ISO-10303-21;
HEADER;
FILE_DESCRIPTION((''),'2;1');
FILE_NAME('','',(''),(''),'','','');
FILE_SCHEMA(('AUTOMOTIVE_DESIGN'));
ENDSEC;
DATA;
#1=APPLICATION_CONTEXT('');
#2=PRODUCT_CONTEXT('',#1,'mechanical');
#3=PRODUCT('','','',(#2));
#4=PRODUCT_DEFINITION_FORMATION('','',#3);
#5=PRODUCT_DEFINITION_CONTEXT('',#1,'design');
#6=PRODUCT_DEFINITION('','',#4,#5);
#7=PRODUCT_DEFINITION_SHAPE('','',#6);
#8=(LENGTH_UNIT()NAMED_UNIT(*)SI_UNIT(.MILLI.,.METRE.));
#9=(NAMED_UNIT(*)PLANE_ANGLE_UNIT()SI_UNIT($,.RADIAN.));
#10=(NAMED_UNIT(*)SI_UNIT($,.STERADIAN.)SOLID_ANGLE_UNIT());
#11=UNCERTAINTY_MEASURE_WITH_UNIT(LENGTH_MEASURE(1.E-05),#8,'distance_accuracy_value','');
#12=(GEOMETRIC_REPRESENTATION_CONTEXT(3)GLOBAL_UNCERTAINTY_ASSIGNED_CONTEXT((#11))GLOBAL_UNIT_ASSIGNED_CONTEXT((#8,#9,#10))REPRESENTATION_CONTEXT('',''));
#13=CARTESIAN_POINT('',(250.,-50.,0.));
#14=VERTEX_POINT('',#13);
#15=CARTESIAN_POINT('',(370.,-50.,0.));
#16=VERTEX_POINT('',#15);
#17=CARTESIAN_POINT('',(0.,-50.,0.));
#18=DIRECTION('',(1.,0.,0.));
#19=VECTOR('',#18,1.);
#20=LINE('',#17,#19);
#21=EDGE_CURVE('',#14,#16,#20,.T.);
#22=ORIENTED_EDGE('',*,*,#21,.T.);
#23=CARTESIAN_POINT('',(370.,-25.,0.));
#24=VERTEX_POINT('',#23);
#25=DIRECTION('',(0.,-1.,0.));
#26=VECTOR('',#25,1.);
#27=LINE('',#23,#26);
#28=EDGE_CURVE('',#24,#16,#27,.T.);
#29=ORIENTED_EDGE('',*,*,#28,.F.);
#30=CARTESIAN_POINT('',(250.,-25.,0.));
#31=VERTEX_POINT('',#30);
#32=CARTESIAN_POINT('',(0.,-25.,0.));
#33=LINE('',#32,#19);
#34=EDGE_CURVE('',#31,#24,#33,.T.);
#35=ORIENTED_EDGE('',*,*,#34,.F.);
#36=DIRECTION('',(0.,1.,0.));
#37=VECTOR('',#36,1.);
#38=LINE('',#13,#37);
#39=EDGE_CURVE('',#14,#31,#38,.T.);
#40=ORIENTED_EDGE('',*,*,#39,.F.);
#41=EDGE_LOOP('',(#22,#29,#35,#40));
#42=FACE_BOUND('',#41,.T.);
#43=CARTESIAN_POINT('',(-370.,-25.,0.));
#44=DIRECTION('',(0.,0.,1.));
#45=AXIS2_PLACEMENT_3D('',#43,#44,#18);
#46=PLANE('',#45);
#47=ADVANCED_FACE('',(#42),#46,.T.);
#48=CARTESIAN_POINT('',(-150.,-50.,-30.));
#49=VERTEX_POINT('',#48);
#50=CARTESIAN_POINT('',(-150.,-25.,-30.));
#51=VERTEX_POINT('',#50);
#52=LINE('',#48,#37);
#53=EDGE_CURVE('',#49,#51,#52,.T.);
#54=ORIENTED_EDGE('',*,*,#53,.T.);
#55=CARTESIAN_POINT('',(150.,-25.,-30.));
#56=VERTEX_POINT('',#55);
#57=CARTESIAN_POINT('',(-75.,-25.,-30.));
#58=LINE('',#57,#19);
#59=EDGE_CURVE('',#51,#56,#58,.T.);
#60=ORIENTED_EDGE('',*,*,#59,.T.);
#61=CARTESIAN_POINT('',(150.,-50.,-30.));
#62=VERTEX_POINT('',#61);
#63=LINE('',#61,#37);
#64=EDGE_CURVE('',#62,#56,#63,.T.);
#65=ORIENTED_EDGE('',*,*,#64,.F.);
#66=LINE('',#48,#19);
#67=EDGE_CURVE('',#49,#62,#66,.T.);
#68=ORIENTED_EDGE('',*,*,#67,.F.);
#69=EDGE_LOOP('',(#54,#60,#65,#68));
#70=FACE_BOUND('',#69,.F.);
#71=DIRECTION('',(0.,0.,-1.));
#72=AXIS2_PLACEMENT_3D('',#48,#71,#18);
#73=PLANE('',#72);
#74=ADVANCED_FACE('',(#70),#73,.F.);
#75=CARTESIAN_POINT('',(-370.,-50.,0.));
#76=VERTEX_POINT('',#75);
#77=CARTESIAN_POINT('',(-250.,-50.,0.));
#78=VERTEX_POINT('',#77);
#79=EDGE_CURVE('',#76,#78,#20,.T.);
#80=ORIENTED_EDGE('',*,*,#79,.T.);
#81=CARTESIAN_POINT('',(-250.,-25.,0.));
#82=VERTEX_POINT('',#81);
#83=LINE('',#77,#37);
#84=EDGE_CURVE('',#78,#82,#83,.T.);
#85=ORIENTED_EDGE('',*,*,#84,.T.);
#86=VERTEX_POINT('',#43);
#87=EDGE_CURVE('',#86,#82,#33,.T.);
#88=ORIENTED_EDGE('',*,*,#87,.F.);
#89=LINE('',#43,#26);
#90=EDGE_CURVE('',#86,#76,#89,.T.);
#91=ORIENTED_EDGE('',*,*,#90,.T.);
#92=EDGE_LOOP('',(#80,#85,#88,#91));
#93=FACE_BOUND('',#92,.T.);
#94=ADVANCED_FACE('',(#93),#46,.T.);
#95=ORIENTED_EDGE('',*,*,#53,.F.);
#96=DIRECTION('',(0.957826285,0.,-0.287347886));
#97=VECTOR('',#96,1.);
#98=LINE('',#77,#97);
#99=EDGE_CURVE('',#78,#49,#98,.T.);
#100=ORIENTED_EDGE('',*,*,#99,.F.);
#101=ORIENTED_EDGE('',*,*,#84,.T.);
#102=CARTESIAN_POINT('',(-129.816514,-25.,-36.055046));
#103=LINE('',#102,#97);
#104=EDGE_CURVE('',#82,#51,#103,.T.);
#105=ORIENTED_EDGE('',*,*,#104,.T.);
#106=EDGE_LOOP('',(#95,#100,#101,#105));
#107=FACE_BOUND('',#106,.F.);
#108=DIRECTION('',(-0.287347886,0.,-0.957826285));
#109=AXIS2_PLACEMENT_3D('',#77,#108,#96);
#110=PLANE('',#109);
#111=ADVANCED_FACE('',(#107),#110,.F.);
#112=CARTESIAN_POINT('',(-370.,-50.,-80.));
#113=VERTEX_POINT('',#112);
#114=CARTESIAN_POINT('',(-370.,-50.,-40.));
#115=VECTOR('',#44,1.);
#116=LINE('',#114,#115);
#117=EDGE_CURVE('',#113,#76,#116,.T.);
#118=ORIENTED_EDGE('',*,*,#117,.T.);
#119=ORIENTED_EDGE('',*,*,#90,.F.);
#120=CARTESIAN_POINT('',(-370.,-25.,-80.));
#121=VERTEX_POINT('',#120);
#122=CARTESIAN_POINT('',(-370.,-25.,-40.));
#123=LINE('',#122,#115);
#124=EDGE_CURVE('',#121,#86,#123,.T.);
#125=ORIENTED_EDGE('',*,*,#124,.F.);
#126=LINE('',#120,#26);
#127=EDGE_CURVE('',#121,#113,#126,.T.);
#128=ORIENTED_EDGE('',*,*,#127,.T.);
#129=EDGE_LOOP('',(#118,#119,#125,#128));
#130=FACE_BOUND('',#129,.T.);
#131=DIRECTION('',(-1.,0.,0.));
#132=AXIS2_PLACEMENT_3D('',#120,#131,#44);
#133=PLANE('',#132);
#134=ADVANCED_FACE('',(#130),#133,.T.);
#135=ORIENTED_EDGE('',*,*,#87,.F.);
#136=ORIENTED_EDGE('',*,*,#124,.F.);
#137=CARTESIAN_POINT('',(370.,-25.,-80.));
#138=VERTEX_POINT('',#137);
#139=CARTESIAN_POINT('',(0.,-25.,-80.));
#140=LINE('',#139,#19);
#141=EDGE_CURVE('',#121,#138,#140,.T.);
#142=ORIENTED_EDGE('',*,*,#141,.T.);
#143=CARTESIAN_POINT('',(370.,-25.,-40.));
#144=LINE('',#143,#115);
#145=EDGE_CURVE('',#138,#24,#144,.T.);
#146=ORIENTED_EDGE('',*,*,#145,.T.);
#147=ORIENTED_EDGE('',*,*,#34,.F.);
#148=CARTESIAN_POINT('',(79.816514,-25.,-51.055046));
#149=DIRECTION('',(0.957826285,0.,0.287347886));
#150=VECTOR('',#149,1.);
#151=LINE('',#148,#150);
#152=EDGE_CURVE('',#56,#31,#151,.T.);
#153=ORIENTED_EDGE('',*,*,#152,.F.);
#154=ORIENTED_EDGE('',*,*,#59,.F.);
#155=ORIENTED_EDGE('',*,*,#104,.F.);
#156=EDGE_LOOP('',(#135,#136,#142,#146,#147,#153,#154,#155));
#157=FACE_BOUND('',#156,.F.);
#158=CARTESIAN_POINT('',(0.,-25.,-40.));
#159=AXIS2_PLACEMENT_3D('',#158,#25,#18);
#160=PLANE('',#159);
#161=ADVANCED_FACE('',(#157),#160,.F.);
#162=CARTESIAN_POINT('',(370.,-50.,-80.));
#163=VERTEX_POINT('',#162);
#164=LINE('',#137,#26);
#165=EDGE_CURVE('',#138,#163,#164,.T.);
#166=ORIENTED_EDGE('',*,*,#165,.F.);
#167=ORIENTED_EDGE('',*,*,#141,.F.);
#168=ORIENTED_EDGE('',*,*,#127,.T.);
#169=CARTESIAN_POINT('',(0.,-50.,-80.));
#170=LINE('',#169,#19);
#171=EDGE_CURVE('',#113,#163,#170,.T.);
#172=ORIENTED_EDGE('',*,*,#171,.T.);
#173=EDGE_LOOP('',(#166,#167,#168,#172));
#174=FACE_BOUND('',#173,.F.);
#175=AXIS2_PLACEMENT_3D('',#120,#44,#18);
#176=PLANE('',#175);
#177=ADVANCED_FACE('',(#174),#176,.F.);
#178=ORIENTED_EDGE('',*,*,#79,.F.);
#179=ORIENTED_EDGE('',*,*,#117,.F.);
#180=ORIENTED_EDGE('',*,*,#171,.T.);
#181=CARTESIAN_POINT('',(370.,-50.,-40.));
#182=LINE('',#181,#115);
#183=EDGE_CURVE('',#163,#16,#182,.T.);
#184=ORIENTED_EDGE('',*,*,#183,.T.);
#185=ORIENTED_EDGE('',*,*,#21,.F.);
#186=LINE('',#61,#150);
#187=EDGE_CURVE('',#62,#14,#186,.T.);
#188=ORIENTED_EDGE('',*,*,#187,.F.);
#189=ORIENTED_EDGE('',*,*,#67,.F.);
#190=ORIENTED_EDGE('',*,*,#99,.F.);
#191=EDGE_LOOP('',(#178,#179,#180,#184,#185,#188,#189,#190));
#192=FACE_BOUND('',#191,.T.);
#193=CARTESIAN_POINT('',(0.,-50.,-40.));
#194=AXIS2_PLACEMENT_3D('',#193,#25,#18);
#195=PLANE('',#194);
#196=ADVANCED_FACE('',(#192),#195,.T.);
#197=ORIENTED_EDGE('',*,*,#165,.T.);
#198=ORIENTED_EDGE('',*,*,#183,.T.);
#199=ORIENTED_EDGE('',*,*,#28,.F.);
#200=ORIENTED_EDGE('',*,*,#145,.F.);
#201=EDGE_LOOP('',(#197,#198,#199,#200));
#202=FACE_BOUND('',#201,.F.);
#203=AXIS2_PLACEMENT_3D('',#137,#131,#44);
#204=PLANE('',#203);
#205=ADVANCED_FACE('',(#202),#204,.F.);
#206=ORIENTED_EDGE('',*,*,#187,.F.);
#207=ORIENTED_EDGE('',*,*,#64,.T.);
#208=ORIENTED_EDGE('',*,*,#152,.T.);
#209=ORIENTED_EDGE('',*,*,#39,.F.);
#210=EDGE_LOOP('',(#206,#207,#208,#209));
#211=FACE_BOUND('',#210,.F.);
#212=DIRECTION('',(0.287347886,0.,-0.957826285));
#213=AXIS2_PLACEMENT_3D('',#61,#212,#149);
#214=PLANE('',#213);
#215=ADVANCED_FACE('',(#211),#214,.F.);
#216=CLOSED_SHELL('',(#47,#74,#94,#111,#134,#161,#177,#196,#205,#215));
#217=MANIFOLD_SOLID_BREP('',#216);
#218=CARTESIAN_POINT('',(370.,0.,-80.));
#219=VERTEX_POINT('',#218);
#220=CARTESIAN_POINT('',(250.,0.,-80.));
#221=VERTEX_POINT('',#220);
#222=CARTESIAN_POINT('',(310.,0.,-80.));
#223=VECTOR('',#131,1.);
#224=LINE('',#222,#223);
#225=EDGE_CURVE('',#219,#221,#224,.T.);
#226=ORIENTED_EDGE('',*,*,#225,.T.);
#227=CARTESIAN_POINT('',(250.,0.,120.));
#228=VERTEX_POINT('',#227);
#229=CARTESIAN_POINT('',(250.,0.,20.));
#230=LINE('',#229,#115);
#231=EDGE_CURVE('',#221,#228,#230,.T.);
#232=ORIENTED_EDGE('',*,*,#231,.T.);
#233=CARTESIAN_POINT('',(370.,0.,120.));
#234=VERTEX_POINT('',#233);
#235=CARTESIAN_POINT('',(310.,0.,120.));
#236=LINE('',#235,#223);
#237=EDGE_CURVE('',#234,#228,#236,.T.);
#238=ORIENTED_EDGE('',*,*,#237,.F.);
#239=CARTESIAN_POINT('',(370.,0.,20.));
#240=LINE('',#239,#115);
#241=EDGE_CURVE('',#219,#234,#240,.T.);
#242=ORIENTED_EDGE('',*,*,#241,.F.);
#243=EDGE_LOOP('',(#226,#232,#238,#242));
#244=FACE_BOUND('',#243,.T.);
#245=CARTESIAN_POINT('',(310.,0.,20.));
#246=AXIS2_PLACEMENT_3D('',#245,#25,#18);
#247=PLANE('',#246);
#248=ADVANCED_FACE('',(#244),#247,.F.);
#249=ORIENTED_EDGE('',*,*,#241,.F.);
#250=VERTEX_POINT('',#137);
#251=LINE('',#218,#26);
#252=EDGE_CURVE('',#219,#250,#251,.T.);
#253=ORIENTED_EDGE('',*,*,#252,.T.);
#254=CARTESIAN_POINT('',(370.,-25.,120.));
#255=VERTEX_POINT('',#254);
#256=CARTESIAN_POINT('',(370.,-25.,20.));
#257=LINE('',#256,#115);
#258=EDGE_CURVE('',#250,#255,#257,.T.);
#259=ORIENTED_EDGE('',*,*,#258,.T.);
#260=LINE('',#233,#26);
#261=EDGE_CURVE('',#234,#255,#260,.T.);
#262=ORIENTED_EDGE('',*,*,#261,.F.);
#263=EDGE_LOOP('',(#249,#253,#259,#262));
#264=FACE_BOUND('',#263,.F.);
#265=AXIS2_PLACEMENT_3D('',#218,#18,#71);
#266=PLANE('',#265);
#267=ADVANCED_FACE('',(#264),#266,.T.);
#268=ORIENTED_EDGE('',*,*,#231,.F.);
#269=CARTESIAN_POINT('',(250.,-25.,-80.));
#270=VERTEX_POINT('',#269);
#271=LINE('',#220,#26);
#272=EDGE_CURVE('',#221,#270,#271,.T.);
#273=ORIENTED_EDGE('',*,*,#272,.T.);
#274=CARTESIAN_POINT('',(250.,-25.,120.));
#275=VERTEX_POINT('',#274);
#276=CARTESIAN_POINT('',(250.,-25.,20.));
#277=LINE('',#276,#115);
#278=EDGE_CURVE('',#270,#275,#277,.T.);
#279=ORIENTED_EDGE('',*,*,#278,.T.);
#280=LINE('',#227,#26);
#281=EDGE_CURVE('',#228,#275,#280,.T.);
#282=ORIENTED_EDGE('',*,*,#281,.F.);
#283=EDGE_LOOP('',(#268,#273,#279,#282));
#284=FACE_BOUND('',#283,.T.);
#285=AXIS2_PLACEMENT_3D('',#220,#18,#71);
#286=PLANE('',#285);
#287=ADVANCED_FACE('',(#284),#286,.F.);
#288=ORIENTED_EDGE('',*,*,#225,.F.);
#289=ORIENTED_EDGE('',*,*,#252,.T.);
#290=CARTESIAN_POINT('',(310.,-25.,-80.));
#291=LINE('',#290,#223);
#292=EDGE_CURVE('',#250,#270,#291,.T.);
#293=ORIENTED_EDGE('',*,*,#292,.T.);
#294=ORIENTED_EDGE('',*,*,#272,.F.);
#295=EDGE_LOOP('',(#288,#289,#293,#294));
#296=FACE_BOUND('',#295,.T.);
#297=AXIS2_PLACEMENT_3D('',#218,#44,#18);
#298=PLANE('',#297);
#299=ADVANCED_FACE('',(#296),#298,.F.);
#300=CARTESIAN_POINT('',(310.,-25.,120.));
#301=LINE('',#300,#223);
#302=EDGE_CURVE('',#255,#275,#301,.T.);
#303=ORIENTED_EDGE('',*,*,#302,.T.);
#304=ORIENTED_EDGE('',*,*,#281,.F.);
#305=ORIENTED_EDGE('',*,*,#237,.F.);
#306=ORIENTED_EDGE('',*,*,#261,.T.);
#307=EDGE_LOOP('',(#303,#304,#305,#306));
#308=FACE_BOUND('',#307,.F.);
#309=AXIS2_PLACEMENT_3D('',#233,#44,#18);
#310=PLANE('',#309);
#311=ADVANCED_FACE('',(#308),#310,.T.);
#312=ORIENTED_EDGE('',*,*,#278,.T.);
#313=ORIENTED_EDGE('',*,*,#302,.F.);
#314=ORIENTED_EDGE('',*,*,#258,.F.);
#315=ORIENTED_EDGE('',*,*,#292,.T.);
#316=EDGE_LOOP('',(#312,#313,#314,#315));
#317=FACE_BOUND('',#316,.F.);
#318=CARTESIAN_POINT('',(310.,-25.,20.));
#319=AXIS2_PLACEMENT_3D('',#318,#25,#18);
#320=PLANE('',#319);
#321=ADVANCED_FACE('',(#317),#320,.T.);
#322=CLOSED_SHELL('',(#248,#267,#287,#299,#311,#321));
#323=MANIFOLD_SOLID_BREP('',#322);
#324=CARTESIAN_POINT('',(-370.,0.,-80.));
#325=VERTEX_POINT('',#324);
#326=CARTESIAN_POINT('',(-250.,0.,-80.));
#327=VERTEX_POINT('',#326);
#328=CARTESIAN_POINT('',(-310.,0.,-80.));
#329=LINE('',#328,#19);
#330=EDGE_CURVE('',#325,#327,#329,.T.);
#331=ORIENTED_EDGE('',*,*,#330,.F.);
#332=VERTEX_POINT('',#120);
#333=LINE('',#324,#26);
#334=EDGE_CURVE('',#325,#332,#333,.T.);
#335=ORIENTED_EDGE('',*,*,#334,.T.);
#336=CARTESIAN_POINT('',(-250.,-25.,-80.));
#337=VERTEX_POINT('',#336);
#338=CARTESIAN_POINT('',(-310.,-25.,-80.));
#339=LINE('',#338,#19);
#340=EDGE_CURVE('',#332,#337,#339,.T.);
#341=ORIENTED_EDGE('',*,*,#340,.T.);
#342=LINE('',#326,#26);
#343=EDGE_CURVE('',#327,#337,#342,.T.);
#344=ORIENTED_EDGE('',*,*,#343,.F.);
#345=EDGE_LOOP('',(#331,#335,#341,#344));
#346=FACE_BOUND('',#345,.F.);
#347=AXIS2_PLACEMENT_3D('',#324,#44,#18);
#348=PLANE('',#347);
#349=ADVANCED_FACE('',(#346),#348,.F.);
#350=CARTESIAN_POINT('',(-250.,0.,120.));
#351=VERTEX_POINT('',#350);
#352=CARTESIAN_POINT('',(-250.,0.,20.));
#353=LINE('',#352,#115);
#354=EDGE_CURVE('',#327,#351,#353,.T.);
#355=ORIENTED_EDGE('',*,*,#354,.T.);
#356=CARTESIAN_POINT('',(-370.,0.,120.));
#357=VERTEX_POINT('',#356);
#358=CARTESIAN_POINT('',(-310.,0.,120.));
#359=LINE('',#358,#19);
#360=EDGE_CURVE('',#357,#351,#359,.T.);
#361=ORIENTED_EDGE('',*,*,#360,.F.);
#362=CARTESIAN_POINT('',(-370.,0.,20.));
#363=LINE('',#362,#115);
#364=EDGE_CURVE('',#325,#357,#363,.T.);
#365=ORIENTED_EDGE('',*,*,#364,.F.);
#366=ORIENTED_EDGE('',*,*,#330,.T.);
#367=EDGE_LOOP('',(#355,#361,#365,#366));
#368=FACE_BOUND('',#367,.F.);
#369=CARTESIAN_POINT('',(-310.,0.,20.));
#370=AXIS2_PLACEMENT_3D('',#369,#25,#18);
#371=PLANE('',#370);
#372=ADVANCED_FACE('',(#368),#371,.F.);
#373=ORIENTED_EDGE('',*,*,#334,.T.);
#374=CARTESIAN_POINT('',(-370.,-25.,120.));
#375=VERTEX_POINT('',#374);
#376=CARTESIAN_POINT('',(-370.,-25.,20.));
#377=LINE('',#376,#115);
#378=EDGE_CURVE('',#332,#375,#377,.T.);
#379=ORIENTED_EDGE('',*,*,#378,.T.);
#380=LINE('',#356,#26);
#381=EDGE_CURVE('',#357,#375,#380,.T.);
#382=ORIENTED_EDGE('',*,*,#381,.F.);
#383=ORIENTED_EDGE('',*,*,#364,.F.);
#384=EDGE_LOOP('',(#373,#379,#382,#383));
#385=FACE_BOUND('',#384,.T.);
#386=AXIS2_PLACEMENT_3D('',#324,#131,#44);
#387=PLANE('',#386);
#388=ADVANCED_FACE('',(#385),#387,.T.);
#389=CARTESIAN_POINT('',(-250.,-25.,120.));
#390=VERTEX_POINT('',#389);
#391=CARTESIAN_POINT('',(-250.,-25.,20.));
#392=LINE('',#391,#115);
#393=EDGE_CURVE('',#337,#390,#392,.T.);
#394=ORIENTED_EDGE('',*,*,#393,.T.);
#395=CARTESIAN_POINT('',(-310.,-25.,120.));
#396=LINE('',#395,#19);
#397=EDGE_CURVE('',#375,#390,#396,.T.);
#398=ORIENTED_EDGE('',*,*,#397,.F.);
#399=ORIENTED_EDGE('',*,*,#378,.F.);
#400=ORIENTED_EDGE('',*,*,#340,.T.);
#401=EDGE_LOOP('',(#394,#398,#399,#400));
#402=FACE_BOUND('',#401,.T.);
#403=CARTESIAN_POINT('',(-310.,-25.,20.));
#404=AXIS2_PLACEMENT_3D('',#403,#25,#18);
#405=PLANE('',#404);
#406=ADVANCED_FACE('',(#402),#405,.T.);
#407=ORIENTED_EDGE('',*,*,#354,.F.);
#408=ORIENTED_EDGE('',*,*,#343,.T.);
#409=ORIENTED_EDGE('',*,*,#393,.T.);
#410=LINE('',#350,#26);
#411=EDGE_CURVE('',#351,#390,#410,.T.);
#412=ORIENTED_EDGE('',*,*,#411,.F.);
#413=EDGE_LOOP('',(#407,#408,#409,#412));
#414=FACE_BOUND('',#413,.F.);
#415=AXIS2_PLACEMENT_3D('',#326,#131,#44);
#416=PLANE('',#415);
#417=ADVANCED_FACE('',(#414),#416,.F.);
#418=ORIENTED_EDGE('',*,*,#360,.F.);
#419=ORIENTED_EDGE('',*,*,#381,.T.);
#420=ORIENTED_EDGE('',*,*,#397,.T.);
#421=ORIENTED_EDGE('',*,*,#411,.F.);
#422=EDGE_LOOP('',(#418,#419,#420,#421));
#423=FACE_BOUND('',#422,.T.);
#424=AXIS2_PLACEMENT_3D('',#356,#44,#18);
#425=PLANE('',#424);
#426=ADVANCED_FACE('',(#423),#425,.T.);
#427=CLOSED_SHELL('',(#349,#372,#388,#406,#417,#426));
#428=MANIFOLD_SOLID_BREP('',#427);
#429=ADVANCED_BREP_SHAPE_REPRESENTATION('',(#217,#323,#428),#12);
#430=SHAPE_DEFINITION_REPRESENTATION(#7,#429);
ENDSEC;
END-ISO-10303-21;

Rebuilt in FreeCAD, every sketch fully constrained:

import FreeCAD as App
import Part
import Sketcher
from FreeCAD import Vector

doc = App.newDocument("Part")
body = doc.addObject("PartDesign::Body", "Body")

sketch1 = body.newObject("Sketcher::SketchObject", "Sketch")
sketch1.AttachmentSupport = (doc.getObject("XZ_Plane"), [""])
sketch1.MapMode = "FlatFace"
sketch1.addGeometry(Part.LineSegment(Vector(-370, 120, 0), Vector(-370, -80, 0)), False)
sketch1.addGeometry(Part.LineSegment(Vector(-370, -80, 0), Vector(-250, -80, 0)), False)
sketch1.addGeometry(Part.LineSegment(Vector(-250, -80, 0), Vector(-250, 120, 0)), False)
sketch1.addGeometry(Part.LineSegment(Vector(-250, 120, 0), Vector(-370, 120, 0)), False)
sketch1.addConstraint(Sketcher.Constraint("Coincident", 0, 2, 1, 1))
sketch1.addConstraint(Sketcher.Constraint("Coincident", 1, 2, 2, 1))
sketch1.addConstraint(Sketcher.Constraint("Coincident", 2, 2, 3, 1))
sketch1.addConstraint(Sketcher.Constraint("Coincident", 3, 2, 0, 1))
sketch1.addConstraint(Sketcher.Constraint("Vertical", 0))
sketch1.addConstraint(Sketcher.Constraint("Horizontal", 1))
sketch1.addConstraint(Sketcher.Constraint("Vertical", 2))
sketch1.addConstraint(Sketcher.Constraint("Horizontal", 3))
sketch1.addConstraint(Sketcher.Constraint("DistanceX", 1, 1, 1, 2, 120.0))
sketch1.addConstraint(Sketcher.Constraint("DistanceY", 0, 2, 0, 1, 200.0))
sketch1.addConstraint(Sketcher.Constraint("DistanceX", 0, 2, -1, 1, 370.0))
sketch1.addConstraint(Sketcher.Constraint("DistanceY", 0, 2, -1, 1, 80.0))
pad1 = body.newObject("PartDesign::Pad", "Pad")
pad1.Profile = sketch1
pad1.Length = 25
body2 = doc.addObject("PartDesign::Body", "Body001")
doc.recompute()

mirroring = doc.addObject("Part::Mirroring", "Mirroring")
mirroring.Source = body
mirroring.Base = Vector(0, 0, 0)
mirroring.Normal = Vector(1, 0, 0)
body2.BaseFeature = mirroring
doc.recompute()
body3 = doc.addObject("PartDesign::Body", "Body002")

sketch2 = body3.newObject("Sketcher::SketchObject", "Sketch001")
sketch2.AttachmentSupport = (doc.getObject("XZ_Plane002"), [""])
sketch2.MapMode = "FlatFace"
sketch2.AttachmentOffset = App.Placement(Vector(0, 0, 25), App.Rotation())
sketch2.addGeometry(Part.LineSegment(Vector(-370, 0, 0), Vector(-370, -80, 0)), False)
sketch2.addGeometry(Part.LineSegment(Vector(-370, -80, 0), Vector(370, -80, 0)), False)
sketch2.addGeometry(Part.LineSegment(Vector(370, -80, 0), Vector(370, 0, 0)), False)
sketch2.addGeometry(Part.LineSegment(Vector(370, 0, 0), Vector(-370, 0, 0)), False)
sketch2.addConstraint(Sketcher.Constraint("Coincident", 0, 2, 1, 1))
sketch2.addConstraint(Sketcher.Constraint("Coincident", 1, 2, 2, 1))
sketch2.addConstraint(Sketcher.Constraint("Coincident", 2, 2, 3, 1))
sketch2.addConstraint(Sketcher.Constraint("Coincident", 3, 2, 0, 1))
sketch2.addConstraint(Sketcher.Constraint("Vertical", 0))
sketch2.addConstraint(Sketcher.Constraint("Horizontal", 1))
sketch2.addConstraint(Sketcher.Constraint("Vertical", 2))
sketch2.addConstraint(Sketcher.Constraint("Horizontal", 3))
sketch2.addConstraint(Sketcher.Constraint("Symmetric", 2, 2, 3, 2, -1, 1))
sketch2.addConstraint(Sketcher.Constraint("DistanceX", 1, 1, 1, 2, 740.0))
sketch2.addConstraint(Sketcher.Constraint("DistanceY", 0, 2, 0, 1, 80.0))
pad2 = body3.newObject("PartDesign::Pad", "Pad001")
pad2.Profile = sketch2
pad2.Length = 25

sketch3 = body3.newObject("Sketcher::SketchObject", "Sketch002")
sketch3.AttachmentSupport = (doc.getObject("XZ_Plane002"), [""])
sketch3.MapMode = "FlatFace"
sketch3.AttachmentOffset = App.Placement(Vector(0, 0, 50), App.Rotation())
sketch3.addGeometry(Part.LineSegment(Vector(-250, 0, 0), Vector(-150, -30, 0)), False)
sketch3.addGeometry(Part.LineSegment(Vector(-150, -30, 0), Vector(150, -30, 0)), False)
sketch3.addGeometry(Part.LineSegment(Vector(150, -30, 0), Vector(250, 0, 0)), False)
sketch3.addGeometry(Part.LineSegment(Vector(250, 0, 0), Vector(-250, 0, 0)), False)
sketch3.addConstraint(Sketcher.Constraint("Coincident", 0, 2, 1, 1))
sketch3.addConstraint(Sketcher.Constraint("Coincident", 1, 2, 2, 1))
sketch3.addConstraint(Sketcher.Constraint("Coincident", 2, 2, 3, 1))
sketch3.addConstraint(Sketcher.Constraint("Coincident", 3, 2, 0, 1))
sketch3.addConstraint(Sketcher.Constraint("Horizontal", 1))
sketch3.addConstraint(Sketcher.Constraint("Horizontal", 3))
sketch3.addConstraint(Sketcher.Constraint("Symmetric", 2, 2, 3, 2, -1, 1))
sketch3.addConstraint(Sketcher.Constraint("Equal", 0, 2))
sketch3.addConstraint(Sketcher.Constraint("DistanceX", 1, 1, 1, 2, 300.0))
sketch3.addConstraint(Sketcher.Constraint("DistanceX", 3, 2, 3, 1, 500.0))
sketch3.addConstraint(Sketcher.Constraint("DistanceY", 0, 2, -1, 1, 30.0))
pocket1 = body3.newObject("PartDesign::Pocket", "Pocket")
pocket1.Profile = sketch3
pocket1.Type = "ThroughAll"
mirroring.Visibility = False

doc.recompute()
